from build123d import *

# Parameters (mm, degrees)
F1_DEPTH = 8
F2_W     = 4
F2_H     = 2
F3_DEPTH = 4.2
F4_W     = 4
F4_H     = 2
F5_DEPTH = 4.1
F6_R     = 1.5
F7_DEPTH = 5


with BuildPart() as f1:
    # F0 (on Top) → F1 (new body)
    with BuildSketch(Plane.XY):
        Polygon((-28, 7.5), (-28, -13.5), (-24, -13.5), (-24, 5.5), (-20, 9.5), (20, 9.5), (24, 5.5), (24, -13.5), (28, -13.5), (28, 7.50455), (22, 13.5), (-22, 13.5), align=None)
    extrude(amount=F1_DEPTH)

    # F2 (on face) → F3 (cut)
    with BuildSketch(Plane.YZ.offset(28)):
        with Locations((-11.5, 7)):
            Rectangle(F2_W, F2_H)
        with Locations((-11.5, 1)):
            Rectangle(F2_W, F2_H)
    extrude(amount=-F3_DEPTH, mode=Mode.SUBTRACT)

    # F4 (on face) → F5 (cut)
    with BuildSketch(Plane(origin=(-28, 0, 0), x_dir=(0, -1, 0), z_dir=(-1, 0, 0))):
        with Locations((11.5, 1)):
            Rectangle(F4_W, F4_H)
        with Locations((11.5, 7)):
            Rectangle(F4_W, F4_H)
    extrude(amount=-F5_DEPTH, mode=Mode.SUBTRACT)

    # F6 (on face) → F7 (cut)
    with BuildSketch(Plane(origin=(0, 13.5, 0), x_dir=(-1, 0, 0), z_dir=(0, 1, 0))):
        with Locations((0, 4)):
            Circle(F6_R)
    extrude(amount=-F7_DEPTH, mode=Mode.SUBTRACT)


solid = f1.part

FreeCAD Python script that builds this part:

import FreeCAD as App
import Part
import Sketcher
from FreeCAD import Vector
Q = App.Units.Quantity

doc = App.newDocument("Part")
body = doc.addObject("PartDesign::Body", "Body")

sketch1 = body.newObject("Sketcher::SketchObject", "Sketch")
sketch1.AttachmentSupport = (doc.getObject("XY_Plane"), [""])
sketch1.MapMode = "FlatFace"
sketch1.addGeometry([
    Part.LineSegment(Vector(-28, 7.5, 0), Vector(-28, -13.5, 0)),
    Part.LineSegment(Vector(-28, -13.5, 0), Vector(-24, -13.5, 0)),
    Part.LineSegment(Vector(-24, -13.5, 0), Vector(-24, 5.5, 0)),
    Part.LineSegment(Vector(-24, 5.5, 0), Vector(-20, 9.5, 0)),
    Part.LineSegment(Vector(-20, 9.5, 0), Vector(20, 9.5, 0)),
    Part.LineSegment(Vector(20, 9.5, 0), Vector(24, 5.5, 0)),
    Part.LineSegment(Vector(24, 5.5, 0), Vector(24, -13.5, 0)),
    Part.LineSegment(Vector(24, -13.5, 0), Vector(28, -13.5, 0)),
    Part.LineSegment(Vector(28, -13.5, 0), Vector(28, 7.5, 0)),
    Part.LineSegment(Vector(28, 7.5, 0), Vector(22, 13.5, 0)),
    Part.LineSegment(Vector(22, 13.5, 0), Vector(-22, 13.5, 0)),
    Part.LineSegment(Vector(-22, 13.5, 0), Vector(-28, 7.5, 0)),
], False)
sketch1.addConstraint([
    Sketcher.Constraint("Coincident", 0, 2, 1, 1),
    Sketcher.Constraint("Coincident", 1, 2, 2, 1),
    Sketcher.Constraint("Coincident", 2, 2, 3, 1),
    Sketcher.Constraint("Coincident", 3, 2, 4, 1),
    Sketcher.Constraint("Coincident", 4, 2, 5, 1),
    Sketcher.Constraint("Coincident", 5, 2, 6, 1),
    Sketcher.Constraint("Coincident", 6, 2, 7, 1),
    Sketcher.Constraint("Coincident", 7, 2, 8, 1),
    Sketcher.Constraint("Coincident", 8, 2, 9, 1),
    Sketcher.Constraint("Coincident", 9, 2, 10, 1),
    Sketcher.Constraint("Coincident", 10, 2, 11, 1),
    Sketcher.Constraint("Coincident", 11, 2, 0, 1),
    Sketcher.Constraint("Vertical", 0),
    Sketcher.Constraint("Horizontal", 1),
    Sketcher.Constraint("Vertical", 2),
    Sketcher.Constraint("Horizontal", 4),
    Sketcher.Constraint("Vertical", 6),
    Sketcher.Constraint("Horizontal", 7),
    Sketcher.Constraint("Vertical", 8),
    Sketcher.Constraint("Horizontal", 10),
    Sketcher.Constraint("Symmetric", 2, 2, 5, 2, -2),
    Sketcher.Constraint("Symmetric", 0, 2, 7, 2, -2),
    Sketcher.Constraint("Perpendicular", 3, 5),
    Sketcher.Constraint("Perpendicular", 5, 11),
    Sketcher.Constraint("Equal", 3, 5),
    Sketcher.Constraint("DistanceX", 1, 1, 1, 2, Q("4 mm")),
    Sketcher.Constraint("DistanceX", 4, 1, 4, 2, Q("40 mm")),
    Sketcher.Constraint("DistanceX", 10, 2, 10, 1, Q("44 mm")),
    Sketcher.Constraint("DistanceY", 0, 2, 0, 1, Q("21 mm")),
    Sketcher.Constraint("DistanceY", 2, 1, 2, 2, Q("19 mm")),
    Sketcher.Constraint("DistanceX", 0, 2, -1, 1, Q("28 mm")),
    Sketcher.Constraint("DistanceX", -1, 1, 9, 2, Q("22 mm")),
    Sketcher.Constraint("DistanceY", 0, 2, -1, 1, Q("13.5 mm")),
    Sketcher.Constraint("DistanceY", 8, 1, 8, 2, Q("21.00455 mm")),
])
pad1 = body.newObject("PartDesign::Pad", "Pad")
pad1.Profile = sketch1
pad1.Length = 8

sketch2 = body.newObject("Sketcher::SketchObject", "Sketch001")
sketch2.AttachmentSupport = (doc.getObject("YZ_Plane"), [""])
sketch2.MapMode = "FlatFace"
sketch2.AttachmentOffset = App.Placement(Vector(0, 0, 28), App.Rotation())
sketch2.addGeometry([
    Part.LineSegment(Vector(-13.5, 8, 0), Vector(-13.5, 6, 0)),
    Part.LineSegment(Vector(-13.5, 6, 0), Vector(-9.5, 6, 0)),
    Part.LineSegment(Vector(-9.5, 6, 0), Vector(-9.5, 8, 0)),
    Part.LineSegment(Vector(-9.5, 8, 0), Vector(-13.5, 8, 0)),
    Part.LineSegment(Vector(-13.5, 2, 0), Vector(-13.5, 0, 0)),
    Part.LineSegment(Vector(-13.5, 0, 0), Vector(-9.5, 0, 0)),
    Part.LineSegment(Vector(-9.5, 0, 0), Vector(-9.5, 2, 0)),
    Part.LineSegment(Vector(-9.5, 2, 0), Vector(-13.5, 2, 0)),
], False)
sketch2.addConstraint([
    Sketcher.Constraint("Coincident", 0, 2, 1, 1),
    Sketcher.Constraint("Coincident", 1, 2, 2, 1),
    Sketcher.Constraint("Coincident", 2, 2, 3, 1),
    Sketcher.Constraint("Coincident", 3, 2, 0, 1),
    Sketcher.Constraint("Coincident", 4, 2, 5, 1),
    Sketcher.Constraint("Coincident", 5, 2, 6, 1),
    Sketcher.Constraint("Coincident", 6, 2, 7, 1),
    Sketcher.Constraint("Coincident", 7, 2, 4, 1),
    Sketcher.Constraint("Vertical", 0),
    Sketcher.Constraint("Horizontal", 1),
    Sketcher.Constraint("Vertical", 2),
    Sketcher.Constraint("Horizontal", 3),
    Sketcher.Constraint("Vertical", 4),
    Sketcher.Constraint("Horizontal", 5),
    Sketcher.Constraint("Vertical", 6),
    Sketcher.Constraint("Horizontal", 7),
    Sketcher.Constraint("PointOnObject", 4, 2, -1),
    Sketcher.Constraint("Vertical", 3, 2, 4, 2),
    Sketcher.Constraint("Vertical", 2, 2, 5, 2),
    Sketcher.Constraint("Equal", 2, 4),
    Sketcher.Constraint("DistanceX", 1, 1, 1, 2, Q("4 mm")),
    Sketcher.Constraint("DistanceY", 0, 2, 0, 1, Q("2 mm")),
    Sketcher.Constraint("DistanceY", -1, 1, 0, 2, Q("6 mm")),
    Sketcher.Constraint("DistanceX", 0, 2, -1, 1, Q("13.5 mm")),
])
pocket1 = body.newObject("PartDesign::Pocket", "Pocket")
pocket1.Profile = sketch2
pocket1.Length = 4.2

sketch3 = body.newObject("Sketcher::SketchObject", "Sketch002")
sketch3.AttachmentSupport = (doc.getObject("YZ_Plane"), [""])
sketch3.MapMode = "FlatFace"
sketch3.AttachmentOffset = App.Placement(Vector(0, 0, -28), App.Rotation())
sketch3.addGeometry([
    Part.LineSegment(Vector(-9.5, 2, 0), Vector(-9.5, 0, 0)),
    Part.LineSegment(Vector(-9.5, 0, 0), Vector(-13.5, 0, 0)),
    Part.LineSegment(Vector(-13.5, 0, 0), Vector(-13.5, 2, 0)),
    Part.LineSegment(Vector(-13.5, 2, 0), Vector(-9.5, 2, 0)),
    Part.LineSegment(Vector(-9.5, 8, 0), Vector(-9.5, 6, 0)),
    Part.LineSegment(Vector(-9.5, 6, 0), Vector(-13.5, 6, 0)),
    Part.LineSegment(Vector(-13.5, 6, 0), Vector(-13.5, 8, 0)),
    Part.LineSegment(Vector(-13.5, 8, 0), Vector(-9.5, 8, 0)),
], False)
sketch3.addConstraint([
    Sketcher.Constraint("Coincident", 0, 2, 1, 1),
    Sketcher.Constraint("Coincident", 1, 2, 2, 1),
    Sketcher.Constraint("Coincident", 2, 2, 3, 1),
    Sketcher.Constraint("Coincident", 3, 2, 0, 1),
    Sketcher.Constraint("Coincident", 4, 2, 5, 1),
    Sketcher.Constraint("Coincident", 5, 2, 6, 1),
    Sketcher.Constraint("Coincident", 6, 2, 7, 1),
    Sketcher.Constraint("Coincident", 7, 2, 4, 1),
    Sketcher.Constraint("Vertical", 0),
    Sketcher.Constraint("Horizontal", 1),
    Sketcher.Constraint("Vertical", 2),
    Sketcher.Constraint("Horizontal", 3),
    Sketcher.Constraint("Vertical", 4),
    Sketcher.Constraint("Horizontal", 5),
    Sketcher.Constraint("Vertical", 6),
    Sketcher.Constraint("Horizontal", 7),
    Sketcher.Constraint("PointOnObject", 0, 2, -1),
    Sketcher.Constraint("Vertical", 3, 2, 4, 2),
    Sketcher.Constraint("Vertical", 2, 2, 5, 2),
    Sketcher.Constraint("Equal", 2, 4),
    Sketcher.Constraint("DistanceX", 1, 2, 1, 1, Q("4 mm")),
    Sketcher.Constraint("DistanceY", 0, 2, 0, 1, Q("2 mm")),
    Sketcher.Constraint("DistanceY", -1, 1, 4, 2, Q("6 mm")),
    Sketcher.Constraint("DistanceX", 0, 2, -1, 1, Q("9.5 mm")),
])
pocket2 = body.newObject("PartDesign::Pocket", "Pocket001")
pocket2.Profile = sketch3
pocket2.Length = 4.1
pocket2.Reversed = True

sketch4 = body.newObject("Sketcher::SketchObject", "Sketch003")
sketch4.AttachmentSupport = (doc.getObject("XZ_Plane"), [""])
sketch4.MapMode = "FlatFace"
sketch4.AttachmentOffset = App.Placement(Vector(0, 0, -13.5), App.Rotation())
sketch4.addGeometry(Part.Circle(Vector(0, 4, 0), Vector(0, 0, 1), 1.5), False)
sketch4.addConstraint([
    Sketcher.Constraint("PointOnObject", 0, 3, -2),
    Sketcher.Constraint("Diameter", 0, Q("3 mm")),
    Sketcher.Constraint("DistanceY", -1, 1, 0, 3, Q("4 mm")),
])
pocket3 = body.newObject("PartDesign::Pocket", "Pocket002")
pocket3.Profile = sketch4
pocket3.Length = 5
pocket3.Reversed = True

doc.recompute()
